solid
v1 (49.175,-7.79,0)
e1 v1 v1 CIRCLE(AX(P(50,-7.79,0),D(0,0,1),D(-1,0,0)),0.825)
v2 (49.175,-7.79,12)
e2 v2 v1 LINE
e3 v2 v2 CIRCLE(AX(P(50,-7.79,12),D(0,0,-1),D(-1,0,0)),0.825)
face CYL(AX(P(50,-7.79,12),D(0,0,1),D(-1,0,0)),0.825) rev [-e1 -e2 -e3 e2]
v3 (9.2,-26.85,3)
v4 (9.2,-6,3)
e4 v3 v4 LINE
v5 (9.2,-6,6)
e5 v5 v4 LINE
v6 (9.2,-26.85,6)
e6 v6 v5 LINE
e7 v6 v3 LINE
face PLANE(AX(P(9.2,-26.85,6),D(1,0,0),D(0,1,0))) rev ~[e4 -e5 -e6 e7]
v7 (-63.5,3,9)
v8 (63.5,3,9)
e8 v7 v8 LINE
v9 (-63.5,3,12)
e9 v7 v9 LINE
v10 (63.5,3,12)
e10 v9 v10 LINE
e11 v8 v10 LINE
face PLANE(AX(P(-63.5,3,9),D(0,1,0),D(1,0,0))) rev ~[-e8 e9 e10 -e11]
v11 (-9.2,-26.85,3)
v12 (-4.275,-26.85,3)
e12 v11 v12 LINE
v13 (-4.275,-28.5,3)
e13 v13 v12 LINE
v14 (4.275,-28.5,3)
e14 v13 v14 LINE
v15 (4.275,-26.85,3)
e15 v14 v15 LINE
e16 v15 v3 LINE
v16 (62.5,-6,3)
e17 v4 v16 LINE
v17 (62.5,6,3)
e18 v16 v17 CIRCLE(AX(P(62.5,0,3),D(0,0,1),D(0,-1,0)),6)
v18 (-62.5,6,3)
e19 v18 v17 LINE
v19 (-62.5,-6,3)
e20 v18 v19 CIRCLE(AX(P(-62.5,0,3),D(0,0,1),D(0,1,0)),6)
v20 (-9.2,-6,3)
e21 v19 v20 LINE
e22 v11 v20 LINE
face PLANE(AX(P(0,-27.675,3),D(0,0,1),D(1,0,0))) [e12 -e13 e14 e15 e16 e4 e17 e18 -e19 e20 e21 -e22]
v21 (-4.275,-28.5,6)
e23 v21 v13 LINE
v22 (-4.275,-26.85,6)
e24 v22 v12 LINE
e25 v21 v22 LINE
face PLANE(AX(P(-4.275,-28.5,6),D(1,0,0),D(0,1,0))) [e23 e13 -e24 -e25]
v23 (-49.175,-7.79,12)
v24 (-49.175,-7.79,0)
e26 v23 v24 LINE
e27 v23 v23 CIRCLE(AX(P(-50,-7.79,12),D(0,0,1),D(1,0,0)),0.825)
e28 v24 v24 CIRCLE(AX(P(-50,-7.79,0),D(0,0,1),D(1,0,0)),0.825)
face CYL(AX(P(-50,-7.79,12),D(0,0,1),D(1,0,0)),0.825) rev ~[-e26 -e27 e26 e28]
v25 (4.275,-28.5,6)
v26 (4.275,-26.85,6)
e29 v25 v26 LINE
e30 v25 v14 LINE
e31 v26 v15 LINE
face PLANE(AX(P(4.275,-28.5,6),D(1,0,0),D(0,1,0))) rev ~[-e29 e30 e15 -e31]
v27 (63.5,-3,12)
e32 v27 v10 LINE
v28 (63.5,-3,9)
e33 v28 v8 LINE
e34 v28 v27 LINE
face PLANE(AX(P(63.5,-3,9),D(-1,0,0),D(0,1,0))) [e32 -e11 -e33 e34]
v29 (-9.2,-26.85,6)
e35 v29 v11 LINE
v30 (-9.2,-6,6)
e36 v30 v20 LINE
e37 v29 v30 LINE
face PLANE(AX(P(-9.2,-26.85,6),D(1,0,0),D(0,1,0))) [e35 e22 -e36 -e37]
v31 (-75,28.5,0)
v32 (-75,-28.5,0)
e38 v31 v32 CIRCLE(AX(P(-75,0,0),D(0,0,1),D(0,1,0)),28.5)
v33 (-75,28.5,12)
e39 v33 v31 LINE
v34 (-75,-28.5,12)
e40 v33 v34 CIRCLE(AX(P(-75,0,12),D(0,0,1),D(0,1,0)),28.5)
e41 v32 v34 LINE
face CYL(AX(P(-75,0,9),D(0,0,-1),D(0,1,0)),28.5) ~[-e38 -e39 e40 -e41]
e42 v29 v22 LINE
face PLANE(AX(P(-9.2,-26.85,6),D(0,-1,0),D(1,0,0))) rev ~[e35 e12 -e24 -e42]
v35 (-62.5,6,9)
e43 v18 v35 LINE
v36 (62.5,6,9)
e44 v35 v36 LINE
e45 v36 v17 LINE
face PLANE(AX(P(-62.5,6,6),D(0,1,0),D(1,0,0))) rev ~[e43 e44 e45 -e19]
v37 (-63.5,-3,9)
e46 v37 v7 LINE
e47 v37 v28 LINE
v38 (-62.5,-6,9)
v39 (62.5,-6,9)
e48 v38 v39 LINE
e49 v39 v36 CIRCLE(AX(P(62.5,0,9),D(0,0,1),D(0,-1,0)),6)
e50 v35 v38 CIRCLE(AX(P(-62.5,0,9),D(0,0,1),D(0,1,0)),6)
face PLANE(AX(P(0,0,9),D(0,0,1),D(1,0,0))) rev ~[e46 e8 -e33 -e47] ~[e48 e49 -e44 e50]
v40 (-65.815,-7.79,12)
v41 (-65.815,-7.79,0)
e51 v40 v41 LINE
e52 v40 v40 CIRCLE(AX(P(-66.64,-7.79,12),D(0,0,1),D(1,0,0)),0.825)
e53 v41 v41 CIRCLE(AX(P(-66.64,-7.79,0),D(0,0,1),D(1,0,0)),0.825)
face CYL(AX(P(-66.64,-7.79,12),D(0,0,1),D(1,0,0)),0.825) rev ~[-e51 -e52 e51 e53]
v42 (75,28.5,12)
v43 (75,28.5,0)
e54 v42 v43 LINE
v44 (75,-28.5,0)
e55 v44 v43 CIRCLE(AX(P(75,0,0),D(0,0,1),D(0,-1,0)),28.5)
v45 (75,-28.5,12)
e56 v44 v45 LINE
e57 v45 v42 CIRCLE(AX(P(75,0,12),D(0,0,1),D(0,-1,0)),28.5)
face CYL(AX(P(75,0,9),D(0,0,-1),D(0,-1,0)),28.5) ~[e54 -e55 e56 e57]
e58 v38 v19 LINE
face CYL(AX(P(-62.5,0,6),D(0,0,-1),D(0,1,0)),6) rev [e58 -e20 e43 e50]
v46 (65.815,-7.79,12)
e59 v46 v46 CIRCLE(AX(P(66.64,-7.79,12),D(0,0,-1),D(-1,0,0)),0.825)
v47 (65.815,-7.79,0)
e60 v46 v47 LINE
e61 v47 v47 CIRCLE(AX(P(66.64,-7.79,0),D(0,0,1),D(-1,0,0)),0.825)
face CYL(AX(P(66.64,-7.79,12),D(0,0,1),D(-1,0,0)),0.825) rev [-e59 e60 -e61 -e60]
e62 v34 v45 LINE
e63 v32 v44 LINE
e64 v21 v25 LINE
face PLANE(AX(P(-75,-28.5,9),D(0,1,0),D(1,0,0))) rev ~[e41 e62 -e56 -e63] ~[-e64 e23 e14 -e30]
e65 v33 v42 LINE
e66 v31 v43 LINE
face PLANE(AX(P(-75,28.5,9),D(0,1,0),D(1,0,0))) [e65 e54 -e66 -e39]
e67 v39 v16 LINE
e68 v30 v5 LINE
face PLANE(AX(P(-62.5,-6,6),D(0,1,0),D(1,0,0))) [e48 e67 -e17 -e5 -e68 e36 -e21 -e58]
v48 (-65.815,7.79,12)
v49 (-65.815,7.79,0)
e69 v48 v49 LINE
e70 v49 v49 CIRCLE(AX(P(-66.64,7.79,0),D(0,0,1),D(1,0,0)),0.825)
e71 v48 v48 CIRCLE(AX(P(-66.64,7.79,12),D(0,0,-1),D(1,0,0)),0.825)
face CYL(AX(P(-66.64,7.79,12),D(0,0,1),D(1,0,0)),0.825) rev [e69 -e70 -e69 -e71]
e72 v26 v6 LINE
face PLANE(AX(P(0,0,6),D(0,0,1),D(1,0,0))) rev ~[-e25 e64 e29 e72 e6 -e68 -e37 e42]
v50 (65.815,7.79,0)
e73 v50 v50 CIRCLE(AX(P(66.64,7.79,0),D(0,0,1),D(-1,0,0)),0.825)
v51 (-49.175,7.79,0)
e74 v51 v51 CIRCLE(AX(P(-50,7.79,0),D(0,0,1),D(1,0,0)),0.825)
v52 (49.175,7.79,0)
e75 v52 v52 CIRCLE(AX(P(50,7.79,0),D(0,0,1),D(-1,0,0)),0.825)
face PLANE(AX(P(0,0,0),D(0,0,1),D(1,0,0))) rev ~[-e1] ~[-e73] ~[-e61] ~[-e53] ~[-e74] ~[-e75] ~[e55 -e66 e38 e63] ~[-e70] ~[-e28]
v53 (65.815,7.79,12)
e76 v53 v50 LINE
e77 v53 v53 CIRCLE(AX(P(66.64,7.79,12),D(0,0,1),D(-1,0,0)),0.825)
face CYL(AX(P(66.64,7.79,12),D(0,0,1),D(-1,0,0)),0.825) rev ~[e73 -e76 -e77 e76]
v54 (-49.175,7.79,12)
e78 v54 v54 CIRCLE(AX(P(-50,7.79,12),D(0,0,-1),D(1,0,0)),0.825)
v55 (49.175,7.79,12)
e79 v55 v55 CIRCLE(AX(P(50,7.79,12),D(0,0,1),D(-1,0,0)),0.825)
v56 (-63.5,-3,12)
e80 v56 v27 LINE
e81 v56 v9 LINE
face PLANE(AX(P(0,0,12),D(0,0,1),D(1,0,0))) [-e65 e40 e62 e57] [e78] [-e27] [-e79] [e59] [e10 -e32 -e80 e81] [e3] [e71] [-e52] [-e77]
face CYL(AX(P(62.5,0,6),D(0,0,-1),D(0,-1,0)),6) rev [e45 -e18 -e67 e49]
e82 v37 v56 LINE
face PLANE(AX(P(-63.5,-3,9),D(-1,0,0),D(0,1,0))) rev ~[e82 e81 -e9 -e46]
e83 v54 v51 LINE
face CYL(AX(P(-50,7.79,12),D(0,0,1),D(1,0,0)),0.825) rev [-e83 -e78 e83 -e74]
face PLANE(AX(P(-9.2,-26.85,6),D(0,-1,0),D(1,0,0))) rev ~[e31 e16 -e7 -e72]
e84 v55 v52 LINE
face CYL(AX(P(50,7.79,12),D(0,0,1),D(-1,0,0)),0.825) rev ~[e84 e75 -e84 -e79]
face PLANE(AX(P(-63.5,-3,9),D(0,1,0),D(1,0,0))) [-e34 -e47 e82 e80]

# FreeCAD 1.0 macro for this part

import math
import FreeCAD as App
import Part
import Sketcher
from FreeCAD import Vector

doc = App.newDocument("Part")
params = doc.addObject("Spreadsheet::Sheet", "Params")
for row, (alias, value) in enumerate([
    ("sketch1_radius", "28.5 mm"),
    ("sketch1_width", "150 mm"),
    ("pad1_length", "6 mm"),
    ("sketch2_radius", "6 mm"),
    ("sketch2_width", "125 mm"),
    ("pocket1_length", "3 mm"),
    ("sketch3_width", "18.4 mm"),
    ("sketch3_height", "20.85 mm"),
    ("pocket2_length", "3 mm"),
    ("sketch4_width", "8.55 mm"),
    ("sketch4_height", "1.65 mm"),
    ("pocket3_length", "3 mm"),
    ("sketch5_radius", "6 mm"),
    ("sketch5_radius2", "28.5 mm"),
    ("sketch5_width", "150 mm"),
    ("sketch5_width2", "125 mm"),
    ("pad2_length", "3 mm"),
    ("sketch6_radius", "28.5 mm"),
    ("sketch6_width", "150 mm"),
    ("sketch6_width2", "127 mm"),
    ("sketch6_height", "6 mm"),
    ("pad3_length", "3 mm"),
    ("sketch7_diameter", "1.65 mm"),
], start=1):
    params.set(f"A{row}", alias)
    params.set(f"B{row}", "=" + value)
    params.setAlias(f"B{row}", alias)

body = doc.addObject("PartDesign::Body", "Body")

# Sketch on XY plane
sketch1 = doc.addObject("Sketcher::SketchObject", "Sketch")
body.addObject(sketch1)
sketch1.AttachmentSupport = (doc.XY_Plane, [""])
sketch1.MapMode = "FlatFace"
sketch1.addGeometry(Part.ArcOfCircle(Part.Circle(Vector(-75, 0, 0), Vector(0, 0, 1), 28.5), math.radians(90), math.radians(270)), False)
sketch1.addGeometry(Part.LineSegment(Vector(-75, -28.5, 0), Vector(75, -28.5, 0)), False)
sketch1.addGeometry(Part.ArcOfCircle(Part.Circle(Vector(75, 0, 0), Vector(0, 0, 1), 28.5), math.radians(-90), math.radians(90)), False)
sketch1.addGeometry(Part.LineSegment(Vector(75, 28.5, 0), Vector(-75, 28.5, 0)), False)
sketch1.addConstraint(Sketcher.Constraint("Tangent", 0, 2, 1, 1))
sketch1.addConstraint(Sketcher.Constraint("Tangent", 1, 2, 2, 1))
sketch1.addConstraint(Sketcher.Constraint("Tangent", 2, 2, 3, 1))
sketch1.addConstraint(Sketcher.Constraint("Tangent", 3, 2, 0, 1))
sketch1.addConstraint(Sketcher.Constraint("Horizontal", 1))
sketch1.addConstraint(Sketcher.Constraint("Horizontal", 3))
sketch1.addConstraint(Sketcher.Constraint("Symmetric", 0, 3, 2, 3, -1, 1))
sketch1.addConstraint(Sketcher.Constraint("Radius", 0, 28.5))
sketch1.addConstraint(Sketcher.Constraint("DistanceX", 1, 1, 1, 2, 150.0))
sketch1.setExpression("Constraints[7]", "Params.sketch1_radius")
sketch1.setExpression("Constraints[8]", "Params.sketch1_width")
pad1 = doc.addObject("PartDesign::Pad", "Pad")
body.addObject(pad1)
pad1.Profile = sketch1
pad1.setExpression("Length", "Params.pad1_length")

# Sketch on XY plane
sketch2 = doc.addObject("Sketcher::SketchObject", "Sketch001")
body.addObject(sketch2)
sketch2.AttachmentSupport = (doc.XY_Plane, [""])
sketch2.MapMode = "FlatFace"
sketch2.AttachmentOffset = App.Placement(Vector(0, 0, 6), App.Rotation())
sketch2.addGeometry(Part.ArcOfCircle(Part.Circle(Vector(-62.5, 0, 0), Vector(0, 0, 1), 6), math.radians(90), math.radians(270)), False)
sketch2.addGeometry(Part.LineSegment(Vector(-62.5, -6, 0), Vector(62.5, -6, 0)), False)
sketch2.addGeometry(Part.ArcOfCircle(Part.Circle(Vector(62.5, 0, 0), Vector(0, 0, 1), 6), math.radians(-90), math.radians(90)), False)
sketch2.addGeometry(Part.LineSegment(Vector(62.5, 6, 0), Vector(-62.5, 6, 0)), False)
sketch2.addConstraint(Sketcher.Constraint("Tangent", 0, 2, 1, 1))
sketch2.addConstraint(Sketcher.Constraint("Tangent", 1, 2, 2, 1))
sketch2.addConstraint(Sketcher.Constraint("Tangent", 2, 2, 3, 1))
sketch2.addConstraint(Sketcher.Constraint("Tangent", 3, 2, 0, 1))
sketch2.addConstraint(Sketcher.Constraint("Horizontal", 1))
sketch2.addConstraint(Sketcher.Constraint("Horizontal", 3))
sketch2.addConstraint(Sketcher.Constraint("Symmetric", 0, 3, 2, 3, -1, 1))
sketch2.addConstraint(Sketcher.Constraint("Radius", 0, 6.0))
sketch2.addConstraint(Sketcher.Constraint("DistanceX", 1, 1, 1, 2, 125.0))
sketch2.setExpression("Constraints[7]", "Params.sketch2_radius")
sketch2.setExpression("Constraints[8]", "Params.sketch2_width")
pocket1 = doc.addObject("PartDesign::Pocket", "Pocket")
body.addObject(pocket1)
pocket1.Profile = sketch2
pocket1.setExpression("Length", "Params.pocket1_length")

# Sketch on XY plane
sketch3 = doc.addObject("Sketcher::SketchObject", "Sketch002")
body.addObject(sketch3)
sketch3.AttachmentSupport = (doc.XY_Plane, [""])
sketch3.MapMode = "FlatFace"
sketch3.AttachmentOffset = App.Placement(Vector(0, 0, 6), App.Rotation())
sketch3.addGeometry(Part.LineSegment(Vector(-9.2, -6, 0), Vector(-9.2, -26.85, 0)), False)
sketch3.addGeometry(Part.LineSegment(Vector(-9.2, -26.85, 0), Vector(9.2, -26.85, 0)), False)
sketch3.addGeometry(Part.LineSegment(Vector(9.2, -26.85, 0), Vector(9.2, -6, 0)), False)
sketch3.addGeometry(Part.LineSegment(Vector(9.2, -6, 0), Vector(-9.2, -6, 0)), False)
sketch3.addConstraint(Sketcher.Constraint("Coincident", 0, 2, 1, 1))
sketch3.addConstraint(Sketcher.Constraint("Coincident", 1, 2, 2, 1))
sketch3.addConstraint(Sketcher.Constraint("Coincident", 2, 2, 3, 1))
sketch3.addConstraint(Sketcher.Constraint("Coincident", 3, 2, 0, 1))
sketch3.addConstraint(Sketcher.Constraint("Vertical", 0))
sketch3.addConstraint(Sketcher.Constraint("Horizontal", 1))
sketch3.addConstraint(Sketcher.Constraint("Vertical", 2))
sketch3.addConstraint(Sketcher.Constraint("Horizontal", 3))
sketch3.addConstraint(Sketcher.Constraint("DistanceX", 1, 1, 1, 2, 18.4))
sketch3.addConstraint(Sketcher.Constraint("DistanceY", 2, 2, -1, 1, 6.0))
sketch3.addConstraint(Sketcher.Constraint("DistanceY", 0, 2, 0, 1, 20.85))
sketch3.addConstraint(Sketcher.Constraint("DistanceX", 0, 2, -1, 1, 9.2))
sketch3.setExpression("Constraints[8]", "Params.sketch3_width")
sketch3.setExpression("Constraints[10]", "Params.sketch3_height")
pocket2 = doc.addObject("PartDesign::Pocket", "Pocket001")
body.addObject(pocket2)
pocket2.Profile = sketch3
pocket2.setExpression("Length", "Params.pocket2_length")

# Sketch on XY plane
sketch4 = doc.addObject("Sketcher::SketchObject", "Sketch003")
body.addObject(sketch4)
sketch4.AttachmentSupport = (doc.XY_Plane, [""])
sketch4.MapMode = "FlatFace"
sketch4.AttachmentOffset = App.Placement(Vector(0, 0, 6), App.Rotation())
sketch4.addGeometry(Part.LineSegment(Vector(-4.275, -26.85, 0), Vector(-4.275, -28.5, 0)), False)
sketch4.addGeometry(Part.LineSegment(Vector(-4.275, -28.5, 0), Vector(4.275, -28.5, 0)), False)
sketch4.addGeometry(Part.LineSegment(Vector(4.275, -28.5, 0), Vector(4.275, -26.85, 0)), False)
sketch4.addGeometry(Part.LineSegment(Vector(4.275, -26.85, 0), Vector(-4.275, -26.85, 0)), False)
sketch4.addConstraint(Sketcher.Constraint("Coincident", 0, 2, 1, 1))
sketch4.addConstraint(Sketcher.Constraint("Coincident", 1, 2, 2, 1))
sketch4.addConstraint(Sketcher.Constraint("Coincident", 2, 2, 3, 1))
sketch4.addConstraint(Sketcher.Constraint("Coincident", 3, 2, 0, 1))
sketch4.addConstraint(Sketcher.Constraint("Vertical", 0))
sketch4.addConstraint(Sketcher.Constraint("Horizontal", 1))
sketch4.addConstraint(Sketcher.Constraint("Vertical", 2))
sketch4.addConstraint(Sketcher.Constraint("Horizontal", 3))
sketch4.addConstraint(Sketcher.Constraint("DistanceX", 1, 1, 1, 2, 8.55))
sketch4.addConstraint(Sketcher.Constraint("DistanceY", 0, 2, 0, 1, 1.65))
sketch4.addConstraint(Sketcher.Constraint("DistanceY", 0, 2, -1, 1, 28.5))
sketch4.addConstraint(Sketcher.Constraint("DistanceX", 0, 2, -1, 1, 4.275))
sketch4.setExpression("Constraints[8]", "Params.sketch4_width")
sketch4.setExpression("Constraints[9]", "Params.sketch4_height")
pocket3 = doc.addObject("PartDesign::Pocket", "Pocket002")
body.addObject(pocket3)
pocket3.Profile = sketch4
pocket3.setExpression("Length", "Params.pocket3_length")

# Sketch on XY plane
sketch5 = doc.addObject("Sketcher::SketchObject", "Sketch004")
body.addObject(sketch5)
sketch5.AttachmentSupport = (doc.XY_Plane, [""])
sketch5.MapMode = "FlatFace"
sketch5.AttachmentOffset = App.Placement(Vector(0, 0, 6), App.Rotation())
sketch5.addGeometry(Part.ArcOfCircle(Part.Circle(Vector(-75, 0, 0), Vector(0, 0, 1), 28.5), math.radians(90), math.radians(270)), False)
sketch5.addGeometry(Part.LineSegment(Vector(-75, -28.5, 0), Vector(75, -28.5, 0)), False)
sketch5.addGeometry(Part.ArcOfCircle(Part.Circle(Vector(75, 0, 0), Vector(0, 0, 1), 28.5), math.radians(-90), math.radians(90)), False)
sketch5.addGeometry(Part.LineSegment(Vector(75, 28.5, 0), Vector(-75, 28.5, 0)), False)
sketch5.addGeometry(Part.ArcOfCircle(Part.Circle(Vector(-62.5, 0, 0), Vector(0, 0, 1), 6), math.radians(90), math.radians(270)), False)
sketch5.addGeometry(Part.LineSegment(Vector(-62.5, 6, 0), Vector(62.5, 6, 0)), False)
sketch5.addGeometry(Part.ArcOfCircle(Part.Circle(Vector(62.5, 0, 0), Vector(0, 0, 1), 6), math.radians(-90), math.radians(90)), False)
sketch5.addGeometry(Part.LineSegment(Vector(62.5, -6, 0), Vector(-62.5, -6, 0)), False)
sketch5.addConstraint(Sketcher.Constraint("Tangent", 0, 2, 1, 1))
sketch5.addConstraint(Sketcher.Constraint("Tangent", 1, 2, 2, 1))
sketch5.addConstraint(Sketcher.Constraint("Tangent", 2, 2, 3, 1))
sketch5.addConstraint(Sketcher.Constraint("Tangent", 3, 2, 0, 1))
sketch5.addConstraint(Sketcher.Constraint("Tangent", 4, 1, 5, 1))
sketch5.addConstraint(Sketcher.Constraint("Tangent", 5, 2, 6, 2))
sketch5.addConstraint(Sketcher.Constraint("Tangent", 6, 1, 7, 1))
sketch5.addConstraint(Sketcher.Constraint("Tangent", 7, 2, 4, 2))
sketch5.addConstraint(Sketcher.Constraint("Horizontal", 1))
sketch5.addConstraint(Sketcher.Constraint("Horizontal", 3))
sketch5.addConstraint(Sketcher.Constraint("Horizontal", 5))
sketch5.addConstraint(Sketcher.Constraint("Horizontal", 7))
sketch5.addConstraint(Sketcher.Constraint("Symmetric", 0, 3, 2, 3, -1, 1))
sketch5.addConstraint(Sketcher.Constraint("Symmetric", 4, 3, 6, 3, -1, 1))
sketch5.addConstraint(Sketcher.Constraint("Radius", 4, 6.0))
sketch5.addConstraint(Sketcher.Constraint("Radius", 0, 28.5))
sketch5.addConstraint(Sketcher.Constraint("DistanceX", 1, 1, 1, 2, 150.0))
sketch5.addConstraint(Sketcher.Constraint("DistanceX", 5, 1, 5, 2, 125.0))
sketch5.setExpression("Constraints[14]", "Params.sketch5_radius")
sketch5.setExpression("Constraints[15]", "Params.sketch5_radius2")
sketch5.setExpression("Constraints[16]", "Params.sketch5_width")
sketch5.setExpression("Constraints[17]", "Params.sketch5_width2")
pad2 = doc.addObject("PartDesign::Pad", "Pad001")
body.addObject(pad2)
pad2.Profile = sketch5
pad2.setExpression("Length", "Params.pad2_length")

# Sketch on XY plane
sketch6 = doc.addObject("Sketcher::SketchObject", "Sketch005")
body.addObject(sketch6)
sketch6.AttachmentSupport = (doc.XY_Plane, [""])
sketch6.MapMode = "FlatFace"
sketch6.AttachmentOffset = App.Placement(Vector(0, 0, 9), App.Rotation())
sketch6.addGeometry(Part.ArcOfCircle(Part.Circle(Vector(-75, 0, 0), Vector(0, 0, 1), 28.5), math.radians(90), math.radians(270)), False)
sketch6.addGeometry(Part.LineSegment(Vector(-75, -28.5, 0), Vector(75, -28.5, 0)), False)
sketch6.addGeometry(Part.ArcOfCircle(Part.Circle(Vector(75, 0, 0), Vector(0, 0, 1), 28.5), math.radians(-90), math.radians(90)), False)
sketch6.addGeometry(Part.LineSegment(Vector(75, 28.5, 0), Vector(-75, 28.5, 0)), False)
sketch6.addGeometry(Part.LineSegment(Vector(63.5, -3, 0), Vector(-63.5, -3, 0)), False)
sketch6.addGeometry(Part.LineSegment(Vector(-63.5, -3, 0), Vector(-63.5, 3, 0)), False)
sketch6.addGeometry(Part.LineSegment(Vector(-63.5, 3, 0), Vector(63.5, 3, 0)), False)
sketch6.addGeometry(Part.LineSegment(Vector(63.5, 3, 0), Vector(63.5, -3, 0)), False)
sketch6.addConstraint(Sketcher.Constraint("Tangent", 0, 2, 1, 1))
sketch6.addConstraint(Sketcher.Constraint("Tangent", 1, 2, 2, 1))
sketch6.addConstraint(Sketcher.Constraint("Tangent", 2, 2, 3, 1))
sketch6.addConstraint(Sketcher.Constraint("Tangent", 3, 2, 0, 1))
sketch6.addConstraint(Sketcher.Constraint("Coincident", 4, 2, 5, 1))
sketch6.addConstraint(Sketcher.Constraint("Coincident", 5, 2, 6, 1))
sketch6.addConstraint(Sketcher.Constraint("Coincident", 6, 2, 7, 1))
sketch6.addConstraint(Sketcher.Constraint("Coincident", 7, 2, 4, 1))
sketch6.addConstraint(Sketcher.Constraint("Horizontal", 1))
sketch6.addConstraint(Sketcher.Constraint("Horizontal", 3))
sketch6.addConstraint(Sketcher.Constraint("Horizontal", 4))
sketch6.addConstraint(Sketcher.Constraint("Vertical", 5))
sketch6.addConstraint(Sketcher.Constraint("Horizontal", 6))
sketch6.addConstraint(Sketcher.Constraint("Vertical", 7))
sketch6.addConstraint(Sketcher.Constraint("Symmetric", 0, 3, 2, 3, -1, 1))
sketch6.addConstraint(Sketcher.Constraint("Symmetric", 4, 2, 6, 2, -1, 1))
sketch6.addConstraint(Sketcher.Constraint("Radius", 0, 28.5))
sketch6.addConstraint(Sketcher.Constraint("DistanceX", 1, 1, 1, 2, 150.0))
sketch6.addConstraint(Sketcher.Constraint("DistanceX", 4, 2, 4, 1, 127.0))
sketch6.addConstraint(Sketcher.Constraint("DistanceY", 5, 1, 5, 2, 6.0))
sketch6.setExpression("Constraints[16]", "Params.sketch6_radius")
sketch6.setExpression("Constraints[17]", "Params.sketch6_width")
sketch6.setExpression("Constraints[18]", "Params.sketch6_width2")
sketch6.setExpression("Constraints[19]", "Params.sketch6_height")
pad3 = doc.addObject("PartDesign::Pad", "Pad002")
body.addObject(pad3)
pad3.Profile = sketch6
pad3.setExpression("Length", "Params.pad3_length")

# Sketch on XY plane
sketch7 = doc.addObject("Sketcher::SketchObject", "Sketch006")
body.addObject(sketch7)
sketch7.AttachmentSupport = (doc.XY_Plane, [""])
sketch7.MapMode = "FlatFace"
sketch7.AttachmentOffset = App.Placement(Vector(0, 0, 12), App.Rotation())
sketch7.addGeometry(Part.Circle(Vector(-66.64, -7.79, 0), Vector(0, 0, 1), 0.825), False)
sketch7.addGeometry(Part.Circle(Vector(-50, -7.79, 0), Vector(0, 0, 1), 0.825), False)
sketch7.addConstraint(Sketcher.Constraint("Equal", 0, 1))
sketch7.addConstraint(Sketcher.Constraint("Horizontal", 0, 3, 1, 3))
sketch7.addConstraint(Sketcher.Constraint("Diameter", 0, 1.65))
sketch7.addConstraint(Sketcher.Constraint("DistanceX", 1, 3, -1, 1, 50.0))
sketch7.addConstraint(Sketcher.Constraint("DistanceX", 0, 3, -1, 1, 66.64))
sketch7.addConstraint(Sketcher.Constraint("DistanceY", 0, 3, -1, 1, 7.79))
sketch7.setExpression("Constraints[2]", "Params.sketch7_diameter")
pocket4 = doc.addObject("PartDesign::Pocket", "Pocket003")
body.addObject(pocket4)
pocket4.Profile = sketch7
pocket4.Type = "ThroughAll"
doc.recompute()

mirrored = doc.addObject("PartDesign::Mirrored", "Mirrored")
body.addObject(mirrored)
mirrored.Originals = [pocket4]
mirrored.MirrorPlane = (doc.XZ_Plane, [""])
body.Tip = mirrored
doc.recompute()

mirrored2 = doc.addObject("PartDesign::Mirrored", "Mirrored001")
body.addObject(mirrored2)
mirrored2.Originals = [pocket4]
mirrored2.MirrorPlane = (doc.YZ_Plane, [""])
body.Tip = mirrored2
doc.recompute()

polarpattern = doc.addObject("PartDesign::PolarPattern", "PolarPattern")
body.addObject(polarpattern)
polarpattern.Originals = [pocket4]
polarpattern.Axis = (doc.Z_Axis, [""])
polarpattern.Angle = 360
polarpattern.Occurrences = 2
body.Tip = polarpattern

doc.recompute()
